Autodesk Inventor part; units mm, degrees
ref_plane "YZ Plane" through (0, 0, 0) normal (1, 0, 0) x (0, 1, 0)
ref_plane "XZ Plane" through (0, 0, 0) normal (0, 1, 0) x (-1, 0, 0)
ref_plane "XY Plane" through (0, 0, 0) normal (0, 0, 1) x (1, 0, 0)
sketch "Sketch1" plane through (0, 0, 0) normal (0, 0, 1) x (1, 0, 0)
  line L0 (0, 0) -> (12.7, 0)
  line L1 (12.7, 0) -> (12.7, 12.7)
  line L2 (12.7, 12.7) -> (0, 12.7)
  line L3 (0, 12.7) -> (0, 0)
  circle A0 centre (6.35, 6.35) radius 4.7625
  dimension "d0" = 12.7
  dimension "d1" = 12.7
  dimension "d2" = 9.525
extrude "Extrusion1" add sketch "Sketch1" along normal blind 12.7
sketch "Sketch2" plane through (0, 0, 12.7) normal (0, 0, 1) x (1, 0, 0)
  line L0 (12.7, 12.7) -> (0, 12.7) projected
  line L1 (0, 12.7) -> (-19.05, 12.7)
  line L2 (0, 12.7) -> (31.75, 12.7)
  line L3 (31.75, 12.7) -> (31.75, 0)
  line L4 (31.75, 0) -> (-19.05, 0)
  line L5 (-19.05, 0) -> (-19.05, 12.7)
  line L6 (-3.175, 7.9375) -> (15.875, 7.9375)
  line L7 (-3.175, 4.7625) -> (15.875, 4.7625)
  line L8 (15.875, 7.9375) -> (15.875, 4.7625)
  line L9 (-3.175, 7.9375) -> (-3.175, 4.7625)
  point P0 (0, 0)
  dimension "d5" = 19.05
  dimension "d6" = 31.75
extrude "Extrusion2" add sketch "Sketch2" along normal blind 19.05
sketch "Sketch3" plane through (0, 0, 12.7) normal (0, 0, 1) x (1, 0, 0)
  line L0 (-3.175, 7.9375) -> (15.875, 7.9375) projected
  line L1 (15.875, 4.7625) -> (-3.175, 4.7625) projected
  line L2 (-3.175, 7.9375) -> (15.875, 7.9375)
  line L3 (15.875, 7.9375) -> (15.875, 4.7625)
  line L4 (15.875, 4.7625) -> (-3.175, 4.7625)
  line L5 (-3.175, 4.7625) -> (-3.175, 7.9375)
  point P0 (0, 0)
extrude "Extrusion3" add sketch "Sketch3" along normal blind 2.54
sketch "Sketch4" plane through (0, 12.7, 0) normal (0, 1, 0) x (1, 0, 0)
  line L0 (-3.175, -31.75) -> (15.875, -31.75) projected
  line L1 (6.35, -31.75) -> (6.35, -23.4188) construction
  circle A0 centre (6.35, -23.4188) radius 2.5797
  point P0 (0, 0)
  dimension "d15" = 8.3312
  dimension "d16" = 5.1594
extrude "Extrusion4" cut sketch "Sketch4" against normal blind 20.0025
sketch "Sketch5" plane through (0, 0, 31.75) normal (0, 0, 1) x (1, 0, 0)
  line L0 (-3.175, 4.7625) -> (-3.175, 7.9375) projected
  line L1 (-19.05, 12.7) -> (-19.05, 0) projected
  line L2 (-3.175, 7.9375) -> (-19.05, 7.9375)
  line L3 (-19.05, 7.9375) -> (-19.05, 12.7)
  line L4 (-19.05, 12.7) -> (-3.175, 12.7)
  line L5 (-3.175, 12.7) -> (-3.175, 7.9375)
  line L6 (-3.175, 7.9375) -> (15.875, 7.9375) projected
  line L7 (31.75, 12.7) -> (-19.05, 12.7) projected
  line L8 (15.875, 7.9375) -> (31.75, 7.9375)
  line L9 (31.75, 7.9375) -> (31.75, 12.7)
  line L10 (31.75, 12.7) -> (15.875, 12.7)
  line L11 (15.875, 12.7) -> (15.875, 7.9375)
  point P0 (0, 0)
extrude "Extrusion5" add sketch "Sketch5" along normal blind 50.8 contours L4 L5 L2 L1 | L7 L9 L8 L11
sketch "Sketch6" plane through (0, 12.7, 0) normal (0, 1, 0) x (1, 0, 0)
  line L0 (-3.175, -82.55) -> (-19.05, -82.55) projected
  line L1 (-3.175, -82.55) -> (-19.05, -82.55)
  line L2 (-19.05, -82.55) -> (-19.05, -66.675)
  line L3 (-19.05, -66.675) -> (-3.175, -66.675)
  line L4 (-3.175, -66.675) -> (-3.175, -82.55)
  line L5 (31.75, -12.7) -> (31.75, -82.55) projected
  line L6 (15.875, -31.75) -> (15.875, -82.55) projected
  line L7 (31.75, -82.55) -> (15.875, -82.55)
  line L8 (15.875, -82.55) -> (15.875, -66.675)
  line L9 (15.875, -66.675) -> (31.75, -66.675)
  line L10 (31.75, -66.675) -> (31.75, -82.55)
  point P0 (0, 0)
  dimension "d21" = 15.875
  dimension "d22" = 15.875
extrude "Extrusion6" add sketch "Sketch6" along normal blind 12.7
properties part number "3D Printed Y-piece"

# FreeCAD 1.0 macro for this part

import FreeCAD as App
import Part
import Sketcher
Q = App.Units.Quantity

doc = App.newDocument("Part")
body = doc.addObject("PartDesign::Body", "Body")

# Sketch on XY plane
sketch1 = body.newObject("Sketcher::SketchObject", "Sketch")
sketch1.AttachmentSupport = (doc.getObject("XY_Plane"), [""])
sketch1.MapMode = "FlatFace"
sketch1.addGeometry([
    Part.LineSegment(App.Vector(0, 12.7, 0), App.Vector(0, 0, 0)),  # 0
    Part.LineSegment(App.Vector(0, 0, 0), App.Vector(12.7, 0, 0)),  # 1
    Part.LineSegment(App.Vector(12.7, 0, 0), App.Vector(12.7, 12.7, 0)),  # 2
    Part.LineSegment(App.Vector(12.7, 12.7, 0), App.Vector(0, 12.7, 0)),  # 3
    Part.Circle(App.Vector(6.35, 6.35, 0), App.Vector(0, 0, 1), 4.7625),  # 4
], False)
sketch1.addConstraint([
    Sketcher.Constraint("Coincident", 0, 2, 1, 1),
    Sketcher.Constraint("Coincident", 1, 2, 2, 1),
    Sketcher.Constraint("Coincident", 2, 2, 3, 1),
    Sketcher.Constraint("Coincident", 3, 2, 0, 1),
    Sketcher.Constraint("Vertical", 0),
    Sketcher.Constraint("Horizontal", 1),
    Sketcher.Constraint("Vertical", 2),
    Sketcher.Constraint("Horizontal", 3),
    Sketcher.Constraint("Coincident", 0, 2, -1, 1),
    Sketcher.Constraint("Equal", 3, 0),
    Sketcher.Constraint("Diameter", 4, Q("0.375 in")),
    Sketcher.Constraint("DistanceX", 1, 1, 1, 2, Q("0.5 in")),
    Sketcher.Constraint("DistanceX", -1, 1, 4, 3, Q("0.25 in")),
    Sketcher.Constraint("DistanceY", -1, 1, 4, 3, Q("0.25 in")),
])
pad1 = body.newObject("PartDesign::Pad", "Pad")
pad1.Profile = sketch1
pad1.Length = Q("0.5 in")

# Sketch on XY plane
sketch2 = body.newObject("Sketcher::SketchObject", "Sketch001")
sketch2.AttachmentSupport = (doc.getObject("XY_Plane"), [""])
sketch2.MapMode = "FlatFace"
sketch2.AttachmentOffset = App.Placement(App.Vector(0, 0, 0.5 * 25.4), App.Rotation())
sketch2.addGeometry([
    Part.LineSegment(App.Vector(31.75, 12.7, 0), App.Vector(-19.05, 12.7, 0)),  # 0
    Part.LineSegment(App.Vector(-19.05, 12.7, 0), App.Vector(-19.05, 0, 0)),  # 1
    Part.LineSegment(App.Vector(-19.05, 0, 0), App.Vector(31.75, 0, 0)),  # 2
    Part.LineSegment(App.Vector(31.75, 0, 0), App.Vector(31.75, 12.7, 0)),  # 3
    Part.LineSegment(App.Vector(-3.175, 4.7625, 0), App.Vector(-3.175, 7.9375, 0)),  # 4
    Part.LineSegment(App.Vector(-3.175, 7.9375, 0), App.Vector(15.875, 7.9375, 0)),  # 5
    Part.LineSegment(App.Vector(15.875, 7.9375, 0), App.Vector(15.875, 4.7625, 0)),  # 6
    Part.LineSegment(App.Vector(15.875, 4.7625, 0), App.Vector(-3.175, 4.7625, 0)),  # 7
], False)
sketch2.addConstraint([
    Sketcher.Constraint("Coincident", 0, 2, 1, 1),
    Sketcher.Constraint("Coincident", 1, 2, 2, 1),
    Sketcher.Constraint("Coincident", 2, 2, 3, 1),
    Sketcher.Constraint("Coincident", 3, 2, 0, 1),
    Sketcher.Constraint("Coincident", 4, 2, 5, 1),
    Sketcher.Constraint("Coincident", 5, 2, 6, 1),
    Sketcher.Constraint("Coincident", 6, 2, 7, 1),
    Sketcher.Constraint("Coincident", 7, 2, 4, 1),
    Sketcher.Constraint("Horizontal", 0),
    Sketcher.Constraint("Vertical", 1),
    Sketcher.Constraint("Horizontal", 2),
    Sketcher.Constraint("Vertical", 3),
    Sketcher.Constraint("Vertical", 4),
    Sketcher.Constraint("Horizontal", 5),
    Sketcher.Constraint("Vertical", 6),
    Sketcher.Constraint("Horizontal", 7),
    Sketcher.Constraint("PointOnObject", 1, 2, -1),
    Sketcher.Constraint("DistanceX", 5, 1, 5, 2, Q("0.75 in")),
    Sketcher.Constraint("DistanceX", 0, 2, 0, 1, Q("2 in")),
    Sketcher.Constraint("DistanceX", 0, 2, -1, 1, Q("0.75 in")),
    Sketcher.Constraint("DistanceY", 1, 2, 1, 1, Q("0.5 in")),
    Sketcher.Constraint("DistanceY", 4, 1, 4, 2, Q("0.125 in")),
    Sketcher.Constraint("DistanceX", 4, 2, -1, 1, Q("0.125 in")),
    Sketcher.Constraint("DistanceY", -1, 1, 4, 2, Q("0.3125 in")),
])
pad2 = body.newObject("PartDesign::Pad", "Pad001")
pad2.Profile = sketch2
pad2.Length = Q("0.75 in")

# Sketch on XY plane
sketch3 = body.newObject("Sketcher::SketchObject", "Sketch002")
sketch3.AttachmentSupport = (doc.getObject("XY_Plane"), [""])
sketch3.MapMode = "FlatFace"
sketch3.AttachmentOffset = App.Placement(App.Vector(0, 0, 0.5 * 25.4), App.Rotation())
sketch3.addGeometry([
    Part.LineSegment(App.Vector(15.875, 7.9375, 0), App.Vector(-3.175, 7.9375, 0)),
    Part.LineSegment(App.Vector(-3.175, 7.9375, 0), App.Vector(-3.175, 4.7625, 0)),
    Part.LineSegment(App.Vector(-3.175, 4.7625, 0), App.Vector(15.875, 4.7625, 0)),
    Part.LineSegment(App.Vector(15.875, 4.7625, 0), App.Vector(15.875, 7.9375, 0)),
], False)
sketch3.addConstraint([
    Sketcher.Constraint("Coincident", 0, 2, 1, 1),
    Sketcher.Constraint("Coincident", 1, 2, 2, 1),
    Sketcher.Constraint("Coincident", 2, 2, 3, 1),
    Sketcher.Constraint("Coincident", 3, 2, 0, 1),
    Sketcher.Constraint("Horizontal", 0),
    Sketcher.Constraint("Vertical", 1),
    Sketcher.Constraint("Horizontal", 2),
    Sketcher.Constraint("Vertical", 3),
    Sketcher.Constraint("DistanceX", 0, 2, 0, 1, Q("0.75 in")),
    Sketcher.Constraint("DistanceY", 1, 2, 1, 1, Q("0.125 in")),
    Sketcher.Constraint("DistanceX", 0, 2, -1, 1, Q("0.125 in")),
    Sketcher.Constraint("DistanceY", -1, 1, 0, 2, Q("0.3125 in")),
])
pad3 = body.newObject("PartDesign::Pad", "Pad002")
pad3.Profile = sketch3
pad3.Length = Q("0.1 in")

# Sketch on XZ plane
sketch4 = body.newObject("Sketcher::SketchObject", "Sketch003")
sketch4.AttachmentSupport = (doc.getObject("XZ_Plane"), [""])
sketch4.MapMode = "FlatFace"
sketch4.AttachmentOffset = App.Placement(App.Vector(0, 0, -0.5 * 25.4), App.Rotation())
sketch4.addGeometry(Part.Circle(App.Vector(6.35, 23.4188, 0), App.Vector(0, 0, 1), 2.5797), False)
sketch4.addConstraint([
    Sketcher.Constraint("Diameter", 0, Q("0.203126 in")),
    Sketcher.Constraint("DistanceX", -1, 1, 0, 3, Q("0.25 in")),
    Sketcher.Constraint("DistanceY", -1, 1, 0, 3, Q("0.922 in")),
])
pocket1 = body.newObject("PartDesign::Pocket", "Pocket")
pocket1.Profile = sketch4
pocket1.Length = Q("0.7875 in")
pocket1.Reversed = True

# Sketch on XY plane
sketch5 = body.newObject("Sketcher::SketchObject", "Sketch004")
sketch5.AttachmentSupport = (doc.getObject("XY_Plane"), [""])
sketch5.MapMode = "FlatFace"
sketch5.AttachmentOffset = App.Placement(App.Vector(0, 0, 1.25 * 25.4), App.Rotation())
sketch5.addGeometry([
    Part.LineSegment(App.Vector(-3.175, 12.7, 0), App.Vector(-19.05, 12.7, 0)),  # 0
    Part.LineSegment(App.Vector(-19.05, 12.7, 0), App.Vector(-19.05, 7.9375, 0)),  # 1
    Part.LineSegment(App.Vector(-19.05, 7.9375, 0), App.Vector(-3.175, 7.9375, 0)),  # 2
    Part.LineSegment(App.Vector(-3.175, 7.9375, 0), App.Vector(-3.175, 12.7, 0)),  # 3
    Part.LineSegment(App.Vector(31.75, 12.7, 0), App.Vector(15.875, 12.7, 0)),  # 4
    Part.LineSegment(App.Vector(15.875, 12.7, 0), App.Vector(15.875, 7.9375, 0)),  # 5
    Part.LineSegment(App.Vector(15.875, 7.9375, 0), App.Vector(31.75, 7.9375, 0)),  # 6
    Part.LineSegment(App.Vector(31.75, 7.9375, 0), App.Vector(31.75, 12.7, 0)),  # 7
], False)
sketch5.addConstraint([
    Sketcher.Constraint("Coincident", 0, 2, 1, 1),
    Sketcher.Constraint("Coincident", 1, 2, 2, 1),
    Sketcher.Constraint("Coincident", 2, 2, 3, 1),
    Sketcher.Constraint("Coincident", 3, 2, 0, 1),
    Sketcher.Constraint("Coincident", 4, 2, 5, 1),
    Sketcher.Constraint("Coincident", 5, 2, 6, 1),
    Sketcher.Constraint("Coincident", 6, 2, 7, 1),
    Sketcher.Constraint("Coincident", 7, 2, 4, 1),
    Sketcher.Constraint("Horizontal", 0),
    Sketcher.Constraint("Vertical", 1),
    Sketcher.Constraint("Horizontal", 2),
    Sketcher.Constraint("Vertical", 3),
    Sketcher.Constraint("Horizontal", 4),
    Sketcher.Constraint("Vertical", 5),
    Sketcher.Constraint("Horizontal", 6),
    Sketcher.Constraint("Vertical", 7),
    Sketcher.Constraint("Horizontal", 3, 2, 4, 2),
    Sketcher.Constraint("Horizontal", 2, 2, 5, 2),
    Sketcher.Constraint("Equal", 2, 4),
    Sketcher.Constraint("DistanceX", 1, 2, 6, 2, Q("2 in")),
    Sketcher.Constraint("DistanceY", -1, 1, 0, 2, Q("0.5 in")),
    Sketcher.Constraint("DistanceX", 0, 2, 0, 1, Q("0.625 in")),
    Sketcher.Constraint("DistanceY", 1, 2, 1, 1, Q("0.1875 in")),
    Sketcher.Constraint("DistanceX", 0, 2, -1, 1, Q("0.75 in")),
])
pad4 = body.newObject("PartDesign::Pad", "Pad003")
pad4.Profile = sketch5
pad4.Length = Q("2 in")

# Sketch on XZ plane
sketch6 = body.newObject("Sketcher::SketchObject", "Sketch005")
sketch6.AttachmentSupport = (doc.getObject("XZ_Plane"), [""])
sketch6.MapMode = "FlatFace"
sketch6.AttachmentOffset = App.Placement(App.Vector(0, 0, -0.5 * 25.4), App.Rotation())
sketch6.addGeometry([
    Part.LineSegment(App.Vector(-19.05, 82.55, 0), App.Vector(-3.175, 82.55, 0)),  # 0
    Part.LineSegment(App.Vector(-3.175, 82.55, 0), App.Vector(-3.175, 66.675, 0)),  # 1
    Part.LineSegment(App.Vector(-3.175, 66.675, 0), App.Vector(-19.05, 66.675, 0)),  # 2
    Part.LineSegment(App.Vector(-19.05, 66.675, 0), App.Vector(-19.05, 82.55, 0)),  # 3
    Part.LineSegment(App.Vector(31.75, 82.55, 0), App.Vector(31.75, 66.675, 0)),  # 4
    Part.LineSegment(App.Vector(31.75, 66.675, 0), App.Vector(15.875, 66.675, 0)),  # 5
    Part.LineSegment(App.Vector(15.875, 66.675, 0), App.Vector(15.875, 82.55, 0)),  # 6
    Part.LineSegment(App.Vector(15.875, 82.55, 0), App.Vector(31.75, 82.55, 0)),  # 7
], False)
sketch6.addConstraint([
    Sketcher.Constraint("Coincident", 0, 2, 1, 1),
    Sketcher.Constraint("Coincident", 1, 2, 2, 1),
    Sketcher.Constraint("Coincident", 2, 2, 3, 1),
    Sketcher.Constraint("Coincident", 3, 2, 0, 1),
    Sketcher.Constraint("Coincident", 4, 2, 5, 1),
    Sketcher.Constraint("Coincident", 5, 2, 6, 1),
    Sketcher.Constraint("Coincident", 6, 2, 7, 1),
    Sketcher.Constraint("Coincident", 7, 2, 4, 1),
    Sketcher.Constraint("Horizontal", 0),
    Sketcher.Constraint("Vertical", 1),
    Sketcher.Constraint("Horizontal", 2),
    Sketcher.Constraint("Vertical", 3),
    Sketcher.Constraint("Vertical", 4),
    Sketcher.Constraint("Horizontal", 5),
    Sketcher.Constraint("Vertical", 6),
    Sketcher.Constraint("Horizontal", 7),
    Sketcher.Constraint("Horizontal", 2, 2, 4, 2),
    Sketcher.Constraint("Horizontal", 3, 2, 6, 2),
    Sketcher.Constraint("Equal", 2, 5),
    Sketcher.Constraint("Equal", 7, 1),
    Sketcher.Constraint("DistanceX", 0, 1, 0, 2, Q("0.625 in")),
    Sketcher.Constraint("DistanceX", -1, 1, 5, 2, Q("0.625 in")),
    Sketcher.Constraint("DistanceX", 2, 2, 4, 2, Q("2 in")),
    Sketcher.Constraint("DistanceY", -1, 1, 0, 2, Q("3.25 in")),
])
pad5 = body.newObject("PartDesign::Pad", "Pad004")
pad5.Profile = sketch6
pad5.Length = Q("0.5 in")
pad5.Reversed = True

doc.recompute()
